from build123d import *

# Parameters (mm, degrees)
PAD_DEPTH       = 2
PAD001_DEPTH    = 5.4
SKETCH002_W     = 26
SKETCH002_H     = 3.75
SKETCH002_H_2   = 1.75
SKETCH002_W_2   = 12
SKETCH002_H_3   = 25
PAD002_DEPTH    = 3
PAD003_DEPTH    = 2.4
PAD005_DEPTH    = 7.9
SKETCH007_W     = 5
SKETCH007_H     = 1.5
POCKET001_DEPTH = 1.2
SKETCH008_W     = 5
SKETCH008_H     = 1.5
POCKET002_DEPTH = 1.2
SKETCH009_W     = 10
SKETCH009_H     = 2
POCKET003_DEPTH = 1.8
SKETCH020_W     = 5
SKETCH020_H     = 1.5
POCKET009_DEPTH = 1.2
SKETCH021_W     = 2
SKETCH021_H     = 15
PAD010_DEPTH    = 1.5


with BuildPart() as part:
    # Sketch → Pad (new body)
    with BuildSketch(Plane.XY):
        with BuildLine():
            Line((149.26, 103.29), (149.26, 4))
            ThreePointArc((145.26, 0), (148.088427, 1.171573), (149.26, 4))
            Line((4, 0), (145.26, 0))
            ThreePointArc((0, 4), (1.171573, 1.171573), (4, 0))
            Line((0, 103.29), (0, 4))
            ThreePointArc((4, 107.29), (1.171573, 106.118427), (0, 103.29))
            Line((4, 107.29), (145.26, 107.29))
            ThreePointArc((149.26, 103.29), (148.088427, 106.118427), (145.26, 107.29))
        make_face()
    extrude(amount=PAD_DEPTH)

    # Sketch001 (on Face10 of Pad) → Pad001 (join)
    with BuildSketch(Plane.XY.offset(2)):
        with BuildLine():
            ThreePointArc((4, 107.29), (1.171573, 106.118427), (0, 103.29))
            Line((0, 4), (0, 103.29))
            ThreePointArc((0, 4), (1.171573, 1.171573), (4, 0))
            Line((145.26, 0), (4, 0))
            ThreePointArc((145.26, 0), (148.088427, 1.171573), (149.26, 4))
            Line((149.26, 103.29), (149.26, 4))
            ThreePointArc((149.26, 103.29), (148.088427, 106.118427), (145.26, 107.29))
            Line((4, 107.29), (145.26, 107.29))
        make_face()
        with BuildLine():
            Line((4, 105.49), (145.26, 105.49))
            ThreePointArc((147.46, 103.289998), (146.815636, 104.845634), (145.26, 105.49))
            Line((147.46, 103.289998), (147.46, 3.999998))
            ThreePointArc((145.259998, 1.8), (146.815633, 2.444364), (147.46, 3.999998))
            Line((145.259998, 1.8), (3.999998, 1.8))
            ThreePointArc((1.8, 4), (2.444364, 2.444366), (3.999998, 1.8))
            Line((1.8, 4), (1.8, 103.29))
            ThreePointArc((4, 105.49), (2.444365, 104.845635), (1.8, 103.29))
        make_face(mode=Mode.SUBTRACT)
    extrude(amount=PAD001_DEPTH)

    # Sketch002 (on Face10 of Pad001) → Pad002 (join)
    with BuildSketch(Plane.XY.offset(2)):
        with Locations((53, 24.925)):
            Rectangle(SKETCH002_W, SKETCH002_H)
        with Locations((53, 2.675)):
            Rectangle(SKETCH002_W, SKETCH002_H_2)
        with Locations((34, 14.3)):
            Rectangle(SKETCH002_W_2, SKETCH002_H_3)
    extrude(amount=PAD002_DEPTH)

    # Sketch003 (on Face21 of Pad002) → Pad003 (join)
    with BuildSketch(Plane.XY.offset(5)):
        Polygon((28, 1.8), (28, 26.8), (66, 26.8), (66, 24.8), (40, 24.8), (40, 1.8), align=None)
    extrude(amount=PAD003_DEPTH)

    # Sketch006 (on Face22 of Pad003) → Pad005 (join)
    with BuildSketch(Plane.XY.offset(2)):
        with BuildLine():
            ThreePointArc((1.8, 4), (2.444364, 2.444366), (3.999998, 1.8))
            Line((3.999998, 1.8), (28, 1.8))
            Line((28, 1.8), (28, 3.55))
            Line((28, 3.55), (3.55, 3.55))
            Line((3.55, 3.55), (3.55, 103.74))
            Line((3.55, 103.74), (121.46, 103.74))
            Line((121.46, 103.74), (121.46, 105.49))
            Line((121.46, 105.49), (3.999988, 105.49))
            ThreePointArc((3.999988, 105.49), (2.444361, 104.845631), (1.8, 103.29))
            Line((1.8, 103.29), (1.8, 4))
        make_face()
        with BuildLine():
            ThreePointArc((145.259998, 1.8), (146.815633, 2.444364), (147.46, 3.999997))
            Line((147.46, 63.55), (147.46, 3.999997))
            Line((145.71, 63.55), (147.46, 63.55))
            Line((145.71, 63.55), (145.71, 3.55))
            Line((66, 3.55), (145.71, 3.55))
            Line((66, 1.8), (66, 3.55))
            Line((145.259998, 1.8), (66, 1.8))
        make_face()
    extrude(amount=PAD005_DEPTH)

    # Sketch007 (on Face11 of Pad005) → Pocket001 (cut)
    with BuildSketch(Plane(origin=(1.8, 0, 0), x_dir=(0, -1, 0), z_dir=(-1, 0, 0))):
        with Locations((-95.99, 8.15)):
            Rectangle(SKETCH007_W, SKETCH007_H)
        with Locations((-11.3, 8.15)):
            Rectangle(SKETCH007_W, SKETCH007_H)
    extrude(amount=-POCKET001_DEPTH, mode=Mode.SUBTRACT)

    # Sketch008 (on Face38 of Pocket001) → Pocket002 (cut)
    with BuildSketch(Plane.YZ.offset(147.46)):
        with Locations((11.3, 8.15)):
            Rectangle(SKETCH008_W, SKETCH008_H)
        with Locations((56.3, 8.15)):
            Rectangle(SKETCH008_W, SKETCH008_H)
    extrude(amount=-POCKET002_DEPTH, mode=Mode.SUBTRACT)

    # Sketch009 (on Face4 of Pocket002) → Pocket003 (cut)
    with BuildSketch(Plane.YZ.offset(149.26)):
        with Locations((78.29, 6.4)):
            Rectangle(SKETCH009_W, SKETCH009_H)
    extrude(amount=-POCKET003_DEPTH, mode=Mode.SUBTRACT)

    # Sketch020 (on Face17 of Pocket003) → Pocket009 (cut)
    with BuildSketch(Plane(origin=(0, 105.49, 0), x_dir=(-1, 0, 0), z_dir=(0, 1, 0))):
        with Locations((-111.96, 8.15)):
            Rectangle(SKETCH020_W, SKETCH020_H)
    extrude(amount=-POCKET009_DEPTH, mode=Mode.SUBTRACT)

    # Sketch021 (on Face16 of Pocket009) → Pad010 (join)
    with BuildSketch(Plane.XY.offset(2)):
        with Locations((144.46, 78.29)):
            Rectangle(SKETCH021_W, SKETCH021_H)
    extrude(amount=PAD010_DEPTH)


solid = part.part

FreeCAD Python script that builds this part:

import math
import FreeCAD as App
import Part
import Sketcher
from FreeCAD import Vector
Q = App.Units.Quantity


def add_polygon(sketch, points):
    """Adds a closed chain of lines whose ends are joined by coincident constraints."""
    first, n = sketch.GeometryCount, len(points)
    for a, b in zip(points, points[1:] + points[:1]):
        sketch.addGeometry(Part.LineSegment(App.Vector(*a, 0), App.Vector(*b, 0)), False)
    for i in range(n):
        sketch.addConstraint(Sketcher.Constraint("Coincident", first + i, 2, first + (i + 1) % n, 1))

doc = App.newDocument("Part")
body = doc.addObject("PartDesign::Body", "Body")

# Sketch on XY plane
sketch1 = body.newObject("Sketcher::SketchObject", "Sketch")
sketch1.AttachmentSupport = (doc.getObject("XY_Plane"), [""])
sketch1.MapMode = "FlatFace"
sketch1.addGeometry([
    Part.LineSegment(Vector(149.26, 4, 0), Vector(149.26, 103.29, 0)),  # 0
    Part.ArcOfCircle(Part.Circle(Vector(145.26, 103.29, 0), Vector(0, 0, 1), 4), math.radians(0.000006), math.radians(89.999994)),  # 1
    Part.LineSegment(Vector(145.26, 107.29, 0), Vector(4, 107.29, 0)),  # 2
    Part.ArcOfCircle(Part.Circle(Vector(4, 103.29, 0), Vector(0, 0, 1), 4), math.radians(90.000006), math.radians(179.999994)),  # 3
    Part.LineSegment(Vector(0, 103.29, 0), Vector(0, 4, 0)),  # 4
    Part.ArcOfCircle(Part.Circle(Vector(4, 4, 0), Vector(0, 0, 1), 4), math.radians(-179.999994), math.radians(-90.000006)),  # 5
    Part.LineSegment(Vector(4, 0, 0), Vector(145.26, 0, 0)),  # 6
    Part.ArcOfCircle(Part.Circle(Vector(145.26, 4, 0), Vector(0, 0, 1), 4), math.radians(-89.999994), math.radians(-0.000006)),  # 7
], False)
sketch1.addConstraint([
    Sketcher.Constraint("Tangent", 0, 2, 1, 1),
    Sketcher.Constraint("Tangent", 1, 2, 2, 1),
    Sketcher.Constraint("Tangent", 2, 2, 3, 1),
    Sketcher.Constraint("Tangent", 3, 2, 4, 1),
    Sketcher.Constraint("Tangent", 4, 2, 5, 1),
    Sketcher.Constraint("Tangent", 5, 2, 6, 1),
    Sketcher.Constraint("Tangent", 6, 2, 7, 1),
    Sketcher.Constraint("Tangent", 7, 2, 0, 1),
    Sketcher.Constraint("Vertical", 0),
    Sketcher.Constraint("Horizontal", 2),
    Sketcher.Constraint("Vertical", 4),
    Sketcher.Constraint("Horizontal", 6),
    Sketcher.Constraint("Equal", 1, 3),
    Sketcher.Constraint("Equal", 3, 5),
    Sketcher.Constraint("Equal", 5, 7),
    Sketcher.Constraint("PointOnObject", 3, 2, -2),
    Sketcher.Constraint("PointOnObject", 5, 2, -1),
    Sketcher.Constraint("Radius", 1, Q("4 mm")),
    Sketcher.Constraint("DistanceX", 2, 2, 2, 1, Q("141.26 mm")),
    Sketcher.Constraint("DistanceY", 0, 1, 0, 2, Q("99.29 mm")),
])
pad1 = body.newObject("PartDesign::Pad", "Pad")
pad1.Profile = sketch1
pad1.Length = 2

# Sketch on XY plane
sketch2 = body.newObject("Sketcher::SketchObject", "Sketch001")
sketch2.AttachmentSupport = (doc.getObject("XY_Plane"), [""])
sketch2.MapMode = "FlatFace"
sketch2.AttachmentOffset = App.Placement(Vector(0, 0, 2), App.Rotation())
sketch2.addGeometry([
    Part.ArcOfCircle(Part.Circle(Vector(4, 103.29, 0), Vector(0, 0, 1), 4), math.radians(90.000006), math.radians(179.999994)),  # 0
    Part.LineSegment(Vector(0, 103.29, 0), Vector(0, 4, 0)),  # 1
    Part.ArcOfCircle(Part.Circle(Vector(4, 4, 0), Vector(0, 0, 1), 4), math.radians(-179.999994), math.radians(-90.000006)),  # 2
    Part.LineSegment(Vector(4, 0, 0), Vector(145.26, 0, 0)),  # 3
    Part.ArcOfCircle(Part.Circle(Vector(145.26, 4, 0), Vector(0, 0, 1), 4), math.radians(-89.999994), math.radians(-0.000006)),  # 4
    Part.LineSegment(Vector(149.26, 4, 0), Vector(149.26, 103.29, 0)),  # 5
    Part.ArcOfCircle(Part.Circle(Vector(145.26, 103.29, 0), Vector(0, 0, 1), 4), math.radians(0.000006), math.radians(89.999994)),  # 6
    Part.LineSegment(Vector(145.26, 107.29, 0), Vector(4, 107.29, 0)),  # 7
    Part.ArcOfCircle(Part.Circle(Vector(4, 103.29, 0), Vector(0, 0, 1), 2.2), math.radians(89.999993), math.radians(180.000007)),  # 8
    Part.LineSegment(Vector(4, 105.49, 0), Vector(145.26, 105.49, 0)),  # 9
    Part.ArcOfCircle(Part.Circle(Vector(145.26, 103.29, 0), Vector(0, 0, 1), 2.2), math.radians(-0.000059), math.radians(90.000007)),  # 10
    Part.LineSegment(Vector(147.46, 103.289998, 0), Vector(147.46, 3.999998, 0)),  # 11
    Part.ArcOfCircle(Part.Circle(Vector(145.259999, 4.000001, 0), Vector(0, 0, 1), 2.200001), math.radians(-90.000015), math.radians(-0.000089)),  # 12
    Part.LineSegment(Vector(145.259998, 1.8, 0), Vector(3.999998, 1.8, 0)),  # 13
    Part.ArcOfCircle(Part.Circle(Vector(4, 4, 0), Vector(0, 0, 1), 2.2), math.radians(179.999993), math.radians(269.999955)),  # 14
    Part.LineSegment(Vector(1.8, 4, 0), Vector(1.8, 103.29, 0)),  # 15
], False)
sketch2.addConstraint([
    Sketcher.Constraint("Tangent", 0, 2, 1, 1),
    Sketcher.Constraint("Tangent", 1, 2, 2, 1),
    Sketcher.Constraint("Tangent", 2, 2, 3, 1),
    Sketcher.Constraint("Tangent", 3, 2, 4, 1),
    Sketcher.Constraint("Tangent", 4, 2, 5, 1),
    Sketcher.Constraint("Tangent", 5, 2, 6, 1),
    Sketcher.Constraint("Tangent", 6, 2, 7, 1),
    Sketcher.Constraint("Tangent", 7, 2, 0, 1),
    Sketcher.Constraint("Tangent", 8, 1, 9, 1),
    Sketcher.Constraint("Tangent", 9, 2, 10, 2),
    Sketcher.Constraint("Tangent", 10, 1, 11, 1),
    Sketcher.Constraint("Tangent", 11, 2, 12, 2),
    Sketcher.Constraint("Tangent", 12, 1, 13, 1),
    Sketcher.Constraint("Tangent", 13, 2, 14, 2),
    Sketcher.Constraint("Tangent", 14, 1, 15, 1),
    Sketcher.Constraint("Tangent", 15, 2, 8, 2),
    Sketcher.Constraint("Vertical", 1),
    Sketcher.Constraint("Horizontal", 3),
    Sketcher.Constraint("Vertical", 5),
    Sketcher.Constraint("Horizontal", 7),
    Sketcher.Constraint("Horizontal", 9),
    Sketcher.Constraint("Vertical", 11),
    Sketcher.Constraint("Horizontal", 13),
    Sketcher.Constraint("Vertical", 15),
    Sketcher.Constraint("Coincident", 8, 3, 0, 3),
    Sketcher.Constraint("Coincident", 10, 3, 6, 3),
    Sketcher.Constraint("Coincident", 12, 3, 4, 3),
    Sketcher.Constraint("Equal", 0, 2),
    Sketcher.Constraint("Equal", 2, 4),
    Sketcher.Constraint("Equal", 4, 6),
    Sketcher.Constraint("Equal", 12, 14),
    Sketcher.Constraint("PointOnObject", 0, 2, -2),
    Sketcher.Constraint("PointOnObject", 2, 2, -1),
    Sketcher.Constraint("Radius", 0, Q("4 mm")),
    Sketcher.Constraint("Radius", 8, Q("2.2 mm")),
    Sketcher.Constraint("DistanceX", 3, 1, 3, 2, Q("141.26 mm")),
    Sketcher.Constraint("DistanceY", 1, 2, 1, 1, Q("99.29 mm")),
])
pad2 = body.newObject("PartDesign::Pad", "Pad001")
pad2.Profile = sketch2
pad2.Length = 5.4

# Sketch on XY plane
sketch3 = body.newObject("Sketcher::SketchObject", "Sketch002")
sketch3.AttachmentSupport = (doc.getObject("XY_Plane"), [""])
sketch3.MapMode = "FlatFace"
sketch3.AttachmentOffset = App.Placement(Vector(0, 0, 2), App.Rotation())
add_polygon(sketch3, [(40, 23.05), (66, 23.05), (66, 26.8), (28, 26.8), (28, 1.8), (66, 1.8), (66, 3.55), (40, 3.55)])  # lines 0-7
sketch3.addConstraint([
    Sketcher.Constraint("Horizontal", 0),
    Sketcher.Constraint("Vertical", 1),
    Sketcher.Constraint("Horizontal", 2),
    Sketcher.Constraint("Vertical", 3),
    Sketcher.Constraint("Horizontal", 4),
    Sketcher.Constraint("Vertical", 5),
    Sketcher.Constraint("Horizontal", 6),
    Sketcher.Constraint("Vertical", 7),
    Sketcher.Constraint("Vertical", 1, 2, 4, 2),
    Sketcher.Constraint("DistanceX", 0, 1, 0, 2, Q("26 mm")),
    Sketcher.Constraint("DistanceX", 2, 2, 2, 1, Q("38 mm")),
    Sketcher.Constraint("DistanceY", 3, 2, 3, 1, Q("25 mm")),
    Sketcher.Constraint("DistanceY", 7, 1, 7, 2, Q("19.5 mm")),
    Sketcher.Constraint("DistanceX", -1, 1, 0, 2, Q("66 mm")),
    Sketcher.Constraint("DistanceY", 1, 1, 1, 2, Q("3.75 mm")),
    Sketcher.Constraint("DistanceY", -1, 1, 1, 2, Q("26.8 mm")),
])
pad3 = body.newObject("PartDesign::Pad", "Pad002")
pad3.Profile = sketch3
pad3.Length = 3

# Sketch on XY plane
sketch4 = body.newObject("Sketcher::SketchObject", "Sketch003")
sketch4.AttachmentSupport = (doc.getObject("XY_Plane"), [""])
sketch4.MapMode = "FlatFace"
sketch4.AttachmentOffset = App.Placement(Vector(0, 0, 5), App.Rotation())
add_polygon(sketch4, [(28, 26.8), (28, 1.8), (40, 1.8), (40, 24.8), (66, 24.8), (66, 26.8)])  # lines 0-5
sketch4.addConstraint([
    Sketcher.Constraint("Vertical", 0),
    Sketcher.Constraint("Horizontal", 1),
    Sketcher.Constraint("Vertical", 2),
    Sketcher.Constraint("Horizontal", 3),
    Sketcher.Constraint("Vertical", 4),
    Sketcher.Constraint("Horizontal", 5),
    Sketcher.Constraint("DistanceX", 1, 1, 1, 2, Q("12 mm")),
    Sketcher.Constraint("DistanceX", 3, 1, 3, 2, Q("26 mm")),
    Sketcher.Constraint("DistanceY", 0, 2, 0, 1, Q("25 mm")),
    Sketcher.Constraint("DistanceY", 2, 1, 2, 2, Q("23 mm")),
    Sketcher.Constraint("DistanceX", -1, 1, 0, 2, Q("28 mm")),
    Sketcher.Constraint("DistanceY", -1, 1, 0, 2, Q("1.8 mm")),
])
pad4 = body.newObject("PartDesign::Pad", "Pad003")
pad4.Profile = sketch4
pad4.Length = 2.4

# Sketch on XY plane
sketch5 = body.newObject("Sketcher::SketchObject", "Sketch004")
sketch5.AttachmentSupport = (doc.getObject("XY_Plane"), [""])
sketch5.MapMode = "FlatFace"
sketch5.AttachmentOffset = App.Placement(Vector(0, 0, 2), App.Rotation())
sketch5.addGeometry([
    Part.ArcOfCircle(Part.Circle(Vector(4, 4, 0), Vector(0, 0, 1), 2.2), math.radians(179.999993), math.radians(269.999955)),  # 0
    Part.LineSegment(Vector(3.999998, 1.8, 0), Vector(28, 1.8, 0)),  # 1
    Part.LineSegment(Vector(28, 1.8, 0), Vector(28, 3.55, 0)),  # 2
    Part.LineSegment(Vector(28, 3.55, 0), Vector(3.55, 3.55, 0)),  # 3
    Part.LineSegment(Vector(3.55, 3.55, 0), Vector(3.55, 103.74, 0)),  # 4
    Part.LineSegment(Vector(3.55, 103.74, 0), Vector(121.46, 103.74, 0)),  # 5
    Part.LineSegment(Vector(121.46, 103.74, 0), Vector(121.46, 105.49, 0)),  # 6
    Part.LineSegment(Vector(121.46, 105.49, 0), Vector(3.999988, 105.49, 0)),  # 7
    Part.ArcOfCircle(Part.Circle(Vector(4, 103.29, 0), Vector(0, 0, 1), 2.2), math.radians(90.000305), math.radians(180.000007)),  # 8
    Part.LineSegment(Vector(1.8, 103.29, 0), Vector(1.8, 4, 0)),  # 9
    Part.ArcOfCircle(Part.Circle(Vector(145.259999, 4.000001, 0), Vector(0, 0, 1), 2.200001), math.radians(-90.000015), math.radians(-0.000115)),  # 10
    Part.LineSegment(Vector(147.46, 3.999997, 0), Vector(147.46, 63.55, 0)),  # 11
    Part.LineSegment(Vector(147.46, 63.55, 0), Vector(145.71, 63.55, 0)),  # 12
    Part.LineSegment(Vector(145.71, 63.55, 0), Vector(145.71, 3.55, 0)),  # 13
    Part.LineSegment(Vector(145.71, 3.55, 0), Vector(66, 3.55, 0)),  # 14
    Part.LineSegment(Vector(66, 3.55, 0), Vector(66, 1.8, 0)),  # 15
    Part.LineSegment(Vector(66, 1.8, 0), Vector(145.259998, 1.8, 0)),  # 16
], False)
sketch5.addConstraint([
    Sketcher.Constraint("Tangent", 0, 2, 1, 1),
    Sketcher.Constraint("Coincident", 1, 2, 2, 1),
    Sketcher.Constraint("Coincident", 2, 2, 3, 1),
    Sketcher.Constraint("Coincident", 3, 2, 4, 1),
    Sketcher.Constraint("Coincident", 4, 2, 5, 1),
    Sketcher.Constraint("Coincident", 5, 2, 6, 1),
    Sketcher.Constraint("Coincident", 6, 2, 7, 1),
    Sketcher.Constraint("Coincident", 7, 2, 8, 1),
    Sketcher.Constraint("Tangent", 8, 2, 9, 1),
    Sketcher.Constraint("Tangent", 9, 2, 0, 1),
    Sketcher.Constraint("Coincident", 10, 2, 11, 1),
    Sketcher.Constraint("Coincident", 11, 2, 12, 1),
    Sketcher.Constraint("Coincident", 12, 2, 13, 1),
    Sketcher.Constraint("Coincident", 13, 2, 14, 1),
    Sketcher.Constraint("Coincident", 14, 2, 15, 1),
    Sketcher.Constraint("Coincident", 15, 2, 16, 1),
    Sketcher.Constraint("Tangent", 16, 2, 10, 1),
    Sketcher.Constraint("Horizontal", 1),
    Sketcher.Constraint("Vertical", 2),
    Sketcher.Constraint("Horizontal", 3),
    Sketcher.Constraint("Vertical", 4),
    Sketcher.Constraint("Horizontal", 5),
    Sketcher.Constraint("Vertical", 6),
    Sketcher.Constraint("Horizontal", 7),
    Sketcher.Constraint("Vertical", 9),
    Sketcher.Constraint("Vertical", 11),
    Sketcher.Constraint("Horizontal", 12),
    Sketcher.Constraint("Vertical", 13),
    Sketcher.Constraint("Horizontal", 14),
    Sketcher.Constraint("Vertical", 15),
    Sketcher.Constraint("Horizontal", 16),
    Sketcher.Constraint("Equal", 0, 8),
    Sketcher.Constraint("Equal", 8, 10),
    Sketcher.Constraint("Horizontal", 0, 3, 10, 3),
    Sketcher.Constraint("Horizontal", 3, 2, 13, 2),
    Sketcher.Constraint("Equal", 12, 2),
    Sketcher.Constraint("Equal", 2, 6),
    Sketcher.Constraint("Radius", 0, Q("2.2 mm")),
    Sketcher.Constraint("DistanceX", 1, 1, 1, 2, Q("24.000002 mm")),
    Sketcher.Constraint("DistanceY", 13, 2, 13, 1, Q("60 mm")),
    Sketcher.Constraint("DistanceX", -1, 1, 0, 3, Q("4 mm")),
    Sketcher.Constraint("DistanceY", -1, 1, 0, 3, Q("4 mm")),
    Sketcher.Constraint("DistanceX", -1, 1, 14, 2, Q("66 mm")),
    Sketcher.Constraint("DistanceX", 5, 2, 10, 2, Q("26 mm")),
    Sketcher.Constraint("DistanceX", 3, 2, 3, 1, Q("24.45 mm")),
    Sketcher.Constraint("DistanceX", 5, 1, 5, 2, Q("117.91 mm")),
    Sketcher.Constraint("DistanceX", 12, 2, 12, 1, Q("1.75 mm")),
    Sketcher.Constraint("DistanceY", 4, 1, 4, 2, Q("100.19 mm")),
    Sketcher.Constraint("DistanceX", 7, 2, 7, 1, Q("117.460012 mm")),
    Sketcher.Constraint("DistanceY", 11, 1, 11, 2, Q("59.550003 mm")),
])
pad5 = body.newObject("PartDesign::Pad", "Pad004")
pad5.Profile = sketch5
pad5.Length = 7.9

# Sketch on YZ plane
sketch6 = body.newObject("Sketcher::SketchObject", "Sketch005")
sketch6.AttachmentSupport = (doc.getObject("YZ_Plane"), [""])
sketch6.MapMode = "FlatFace"
sketch6.AttachmentOffset = App.Placement(Vector(0, 0, 1.8), App.Rotation())
add_polygon(sketch6, [(98.49, 8.9), (98.49, 7.4), (93.49, 7.4), (93.49, 8.9)])  # lines 0-3
add_polygon(sketch6, [(13.8, 8.9), (13.8, 7.4), (8.8, 7.4), (8.8, 8.9)])  # lines 4-7
sketch6.addConstraint([
    Sketcher.Constraint("Vertical", 0),
    Sketcher.Constraint("Horizontal", 1),
    Sketcher.Constraint("Vertical", 2),
    Sketcher.Constraint("Horizontal", 3),
    Sketcher.Constraint("Vertical", 4),
    Sketcher.Constraint("Horizontal", 5),
    Sketcher.Constraint("Vertical", 6),
    Sketcher.Constraint("Horizontal", 7),
    Sketcher.Constraint("Horizontal", 1, 2, 4, 2),
    Sketcher.Constraint("Horizontal", 3, 2, 6, 2),
    Sketcher.Constraint("Equal", 3, 5),
    Sketcher.Constraint("DistanceX", 1, 2, 1, 1, Q("5 mm")),
    Sketcher.Constraint("DistanceY", 0, 2, 0, 1, Q("1.5 mm")),
    Sketcher.Constraint("DistanceY", -1, 1, 0, 2, Q("7.4 mm")),
    Sketcher.Constraint("DistanceX", -1, 1, 4, 2, Q("13.8 mm")),
    Sketcher.Constraint("DistanceX", -1, 1, 0, 2, Q("98.49 mm")),
])
pocket1 = body.newObject("PartDesign::Pocket", "Pocket")
pocket1.Profile = sketch6
pocket1.Length = 1.2
pocket1.Reversed = True

# Sketch on YZ plane
sketch7 = body.newObject("Sketcher::SketchObject", "Sketch006")
sketch7.AttachmentSupport = (doc.getObject("YZ_Plane"), [""])
sketch7.MapMode = "FlatFace"
sketch7.AttachmentOffset = App.Placement(Vector(0, 0, 147.46), App.Rotation())
add_polygon(sketch7, [(8.8, 8.9), (8.8, 7.4), (13.8, 7.4), (13.8, 8.9)])  # lines 0-3
add_polygon(sketch7, [(53.8, 8.9), (53.8, 7.4), (58.8, 7.4), (58.8, 8.9)])  # lines 4-7
sketch7.addConstraint([
    Sketcher.Constraint("Vertical", 0),
    Sketcher.Constraint("Horizontal", 1),
    Sketcher.Constraint("Vertical", 2),
    Sketcher.Constraint("Horizontal", 3),
    Sketcher.Constraint("Vertical", 4),
    Sketcher.Constraint("Horizontal", 5),
    Sketcher.Constraint("Vertical", 6),
    Sketcher.Constraint("Horizontal", 7),
    Sketcher.Constraint("Horizontal", 1, 2, 4, 2),
    Sketcher.Constraint("Horizontal", 3, 2, 6, 2),
    Sketcher.Constraint("Equal", 3, 5),
    Sketcher.Constraint("DistanceX", 1, 1, 1, 2, Q("5 mm")),
    Sketcher.Constraint("DistanceY", 0, 2, 0, 1, Q("1.5 mm")),
    Sketcher.Constraint("DistanceX", 1, 2, 4, 2, Q("40 mm")),
    Sketcher.Constraint("DistanceX", -1, 1, 0, 2, Q("8.8 mm")),
    Sketcher.Constraint("DistanceY", -1, 1, 0, 2, Q("7.4 mm")),
])
pocket2 = body.newObject("PartDesign::Pocket", "Pocket001")
pocket2.Profile = sketch7
pocket2.Length = 1.2

# Sketch on YZ plane
sketch8 = body.newObject("Sketcher::SketchObject", "Sketch007")
sketch8.AttachmentSupport = (doc.getObject("YZ_Plane"), [""])
sketch8.MapMode = "FlatFace"
sketch8.AttachmentOffset = App.Placement(Vector(0, 0, 149.26), App.Rotation())
add_polygon(sketch8, [(73.29, 7.4), (73.29, 5.4), (83.29, 5.4), (83.29, 7.4)])  # lines 0-3
sketch8.addConstraint([
    Sketcher.Constraint("Vertical", 0),
    Sketcher.Constraint("Horizontal", 1),
    Sketcher.Constraint("Vertical", 2),
    Sketcher.Constraint("Horizontal", 3),
    Sketcher.Constraint("DistanceX", 1, 1, 1, 2, Q("10 mm")),
    Sketcher.Constraint("DistanceY", 0, 2, 0, 1, Q("2 mm")),
    Sketcher.Constraint("DistanceY", -1, 1, 0, 2, Q("5.4 mm")),
    Sketcher.Constraint("DistanceX", -1, 1, 0, 2, Q("73.29 mm")),
])
pocket3 = body.newObject("PartDesign::Pocket", "Pocket002")
pocket3.Profile = sketch8
pocket3.Length = 1.8

# Sketch on XZ plane
sketch9 = body.newObject("Sketcher::SketchObject", "Sketch008")
sketch9.AttachmentSupport = (doc.getObject("XZ_Plane"), [""])
sketch9.MapMode = "FlatFace"
sketch9.AttachmentOffset = App.Placement(Vector(0, 0, -105.49), App.Rotation())
add_polygon(sketch9, [(114.46, 8.9), (114.46, 7.4), (109.46, 7.4), (109.46, 8.9)])  # lines 0-3
sketch9.addConstraint([
    Sketcher.Constraint("Vertical", 0),
    Sketcher.Constraint("Horizontal", 1),
    Sketcher.Constraint("Vertical", 2),
    Sketcher.Constraint("Horizontal", 3),
    Sketcher.Constraint("DistanceX", 1, 2, 1, 1, Q("5 mm")),
    Sketcher.Constraint("DistanceY", 0, 2, 0, 1, Q("1.5 mm")),
    Sketcher.Constraint("DistanceY", -1, 1, 0, 2, Q("7.4 mm")),
    Sketcher.Constraint("DistanceX", -1, 1, 0, 2, Q("114.46 mm")),
])
pocket4 = body.newObject("PartDesign::Pocket", "Pocket003")
pocket4.Profile = sketch9
pocket4.Length = 1.2
pocket4.Reversed = True

# Sketch on XY plane
sketch10 = body.newObject("Sketcher::SketchObject", "Sketch009")
sketch10.AttachmentSupport = (doc.getObject("XY_Plane"), [""])
sketch10.MapMode = "FlatFace"
sketch10.AttachmentOffset = App.Placement(Vector(0, 0, 2), App.Rotation())
add_polygon(sketch10, [(143.46, 85.79), (143.46, 70.79), (145.46, 70.79), (145.46, 85.79)])  # lines 0-3
sketch10.addConstraint([
    Sketcher.Constraint("Vertical", 0),
    Sketcher.Constraint("Horizontal", 1),
    Sketcher.Constraint("Vertical", 2),
    Sketcher.Constraint("Horizontal", 3),
    Sketcher.Constraint("DistanceX", 1, 1, 1, 2, Q("2 mm")),
    Sketcher.Constraint("DistanceY", 0, 2, 0, 1, Q("15 mm")),
    Sketcher.Constraint("DistanceX", -1, 1, 0, 2, Q("143.46 mm")),
    Sketcher.Constraint("DistanceY", -1, 1, 0, 2, Q("70.79 mm")),
])
pad6 = body.newObject("PartDesign::Pad", "Pad005")
pad6.Profile = sketch10
pad6.Length = 1.5

doc.recompute()
